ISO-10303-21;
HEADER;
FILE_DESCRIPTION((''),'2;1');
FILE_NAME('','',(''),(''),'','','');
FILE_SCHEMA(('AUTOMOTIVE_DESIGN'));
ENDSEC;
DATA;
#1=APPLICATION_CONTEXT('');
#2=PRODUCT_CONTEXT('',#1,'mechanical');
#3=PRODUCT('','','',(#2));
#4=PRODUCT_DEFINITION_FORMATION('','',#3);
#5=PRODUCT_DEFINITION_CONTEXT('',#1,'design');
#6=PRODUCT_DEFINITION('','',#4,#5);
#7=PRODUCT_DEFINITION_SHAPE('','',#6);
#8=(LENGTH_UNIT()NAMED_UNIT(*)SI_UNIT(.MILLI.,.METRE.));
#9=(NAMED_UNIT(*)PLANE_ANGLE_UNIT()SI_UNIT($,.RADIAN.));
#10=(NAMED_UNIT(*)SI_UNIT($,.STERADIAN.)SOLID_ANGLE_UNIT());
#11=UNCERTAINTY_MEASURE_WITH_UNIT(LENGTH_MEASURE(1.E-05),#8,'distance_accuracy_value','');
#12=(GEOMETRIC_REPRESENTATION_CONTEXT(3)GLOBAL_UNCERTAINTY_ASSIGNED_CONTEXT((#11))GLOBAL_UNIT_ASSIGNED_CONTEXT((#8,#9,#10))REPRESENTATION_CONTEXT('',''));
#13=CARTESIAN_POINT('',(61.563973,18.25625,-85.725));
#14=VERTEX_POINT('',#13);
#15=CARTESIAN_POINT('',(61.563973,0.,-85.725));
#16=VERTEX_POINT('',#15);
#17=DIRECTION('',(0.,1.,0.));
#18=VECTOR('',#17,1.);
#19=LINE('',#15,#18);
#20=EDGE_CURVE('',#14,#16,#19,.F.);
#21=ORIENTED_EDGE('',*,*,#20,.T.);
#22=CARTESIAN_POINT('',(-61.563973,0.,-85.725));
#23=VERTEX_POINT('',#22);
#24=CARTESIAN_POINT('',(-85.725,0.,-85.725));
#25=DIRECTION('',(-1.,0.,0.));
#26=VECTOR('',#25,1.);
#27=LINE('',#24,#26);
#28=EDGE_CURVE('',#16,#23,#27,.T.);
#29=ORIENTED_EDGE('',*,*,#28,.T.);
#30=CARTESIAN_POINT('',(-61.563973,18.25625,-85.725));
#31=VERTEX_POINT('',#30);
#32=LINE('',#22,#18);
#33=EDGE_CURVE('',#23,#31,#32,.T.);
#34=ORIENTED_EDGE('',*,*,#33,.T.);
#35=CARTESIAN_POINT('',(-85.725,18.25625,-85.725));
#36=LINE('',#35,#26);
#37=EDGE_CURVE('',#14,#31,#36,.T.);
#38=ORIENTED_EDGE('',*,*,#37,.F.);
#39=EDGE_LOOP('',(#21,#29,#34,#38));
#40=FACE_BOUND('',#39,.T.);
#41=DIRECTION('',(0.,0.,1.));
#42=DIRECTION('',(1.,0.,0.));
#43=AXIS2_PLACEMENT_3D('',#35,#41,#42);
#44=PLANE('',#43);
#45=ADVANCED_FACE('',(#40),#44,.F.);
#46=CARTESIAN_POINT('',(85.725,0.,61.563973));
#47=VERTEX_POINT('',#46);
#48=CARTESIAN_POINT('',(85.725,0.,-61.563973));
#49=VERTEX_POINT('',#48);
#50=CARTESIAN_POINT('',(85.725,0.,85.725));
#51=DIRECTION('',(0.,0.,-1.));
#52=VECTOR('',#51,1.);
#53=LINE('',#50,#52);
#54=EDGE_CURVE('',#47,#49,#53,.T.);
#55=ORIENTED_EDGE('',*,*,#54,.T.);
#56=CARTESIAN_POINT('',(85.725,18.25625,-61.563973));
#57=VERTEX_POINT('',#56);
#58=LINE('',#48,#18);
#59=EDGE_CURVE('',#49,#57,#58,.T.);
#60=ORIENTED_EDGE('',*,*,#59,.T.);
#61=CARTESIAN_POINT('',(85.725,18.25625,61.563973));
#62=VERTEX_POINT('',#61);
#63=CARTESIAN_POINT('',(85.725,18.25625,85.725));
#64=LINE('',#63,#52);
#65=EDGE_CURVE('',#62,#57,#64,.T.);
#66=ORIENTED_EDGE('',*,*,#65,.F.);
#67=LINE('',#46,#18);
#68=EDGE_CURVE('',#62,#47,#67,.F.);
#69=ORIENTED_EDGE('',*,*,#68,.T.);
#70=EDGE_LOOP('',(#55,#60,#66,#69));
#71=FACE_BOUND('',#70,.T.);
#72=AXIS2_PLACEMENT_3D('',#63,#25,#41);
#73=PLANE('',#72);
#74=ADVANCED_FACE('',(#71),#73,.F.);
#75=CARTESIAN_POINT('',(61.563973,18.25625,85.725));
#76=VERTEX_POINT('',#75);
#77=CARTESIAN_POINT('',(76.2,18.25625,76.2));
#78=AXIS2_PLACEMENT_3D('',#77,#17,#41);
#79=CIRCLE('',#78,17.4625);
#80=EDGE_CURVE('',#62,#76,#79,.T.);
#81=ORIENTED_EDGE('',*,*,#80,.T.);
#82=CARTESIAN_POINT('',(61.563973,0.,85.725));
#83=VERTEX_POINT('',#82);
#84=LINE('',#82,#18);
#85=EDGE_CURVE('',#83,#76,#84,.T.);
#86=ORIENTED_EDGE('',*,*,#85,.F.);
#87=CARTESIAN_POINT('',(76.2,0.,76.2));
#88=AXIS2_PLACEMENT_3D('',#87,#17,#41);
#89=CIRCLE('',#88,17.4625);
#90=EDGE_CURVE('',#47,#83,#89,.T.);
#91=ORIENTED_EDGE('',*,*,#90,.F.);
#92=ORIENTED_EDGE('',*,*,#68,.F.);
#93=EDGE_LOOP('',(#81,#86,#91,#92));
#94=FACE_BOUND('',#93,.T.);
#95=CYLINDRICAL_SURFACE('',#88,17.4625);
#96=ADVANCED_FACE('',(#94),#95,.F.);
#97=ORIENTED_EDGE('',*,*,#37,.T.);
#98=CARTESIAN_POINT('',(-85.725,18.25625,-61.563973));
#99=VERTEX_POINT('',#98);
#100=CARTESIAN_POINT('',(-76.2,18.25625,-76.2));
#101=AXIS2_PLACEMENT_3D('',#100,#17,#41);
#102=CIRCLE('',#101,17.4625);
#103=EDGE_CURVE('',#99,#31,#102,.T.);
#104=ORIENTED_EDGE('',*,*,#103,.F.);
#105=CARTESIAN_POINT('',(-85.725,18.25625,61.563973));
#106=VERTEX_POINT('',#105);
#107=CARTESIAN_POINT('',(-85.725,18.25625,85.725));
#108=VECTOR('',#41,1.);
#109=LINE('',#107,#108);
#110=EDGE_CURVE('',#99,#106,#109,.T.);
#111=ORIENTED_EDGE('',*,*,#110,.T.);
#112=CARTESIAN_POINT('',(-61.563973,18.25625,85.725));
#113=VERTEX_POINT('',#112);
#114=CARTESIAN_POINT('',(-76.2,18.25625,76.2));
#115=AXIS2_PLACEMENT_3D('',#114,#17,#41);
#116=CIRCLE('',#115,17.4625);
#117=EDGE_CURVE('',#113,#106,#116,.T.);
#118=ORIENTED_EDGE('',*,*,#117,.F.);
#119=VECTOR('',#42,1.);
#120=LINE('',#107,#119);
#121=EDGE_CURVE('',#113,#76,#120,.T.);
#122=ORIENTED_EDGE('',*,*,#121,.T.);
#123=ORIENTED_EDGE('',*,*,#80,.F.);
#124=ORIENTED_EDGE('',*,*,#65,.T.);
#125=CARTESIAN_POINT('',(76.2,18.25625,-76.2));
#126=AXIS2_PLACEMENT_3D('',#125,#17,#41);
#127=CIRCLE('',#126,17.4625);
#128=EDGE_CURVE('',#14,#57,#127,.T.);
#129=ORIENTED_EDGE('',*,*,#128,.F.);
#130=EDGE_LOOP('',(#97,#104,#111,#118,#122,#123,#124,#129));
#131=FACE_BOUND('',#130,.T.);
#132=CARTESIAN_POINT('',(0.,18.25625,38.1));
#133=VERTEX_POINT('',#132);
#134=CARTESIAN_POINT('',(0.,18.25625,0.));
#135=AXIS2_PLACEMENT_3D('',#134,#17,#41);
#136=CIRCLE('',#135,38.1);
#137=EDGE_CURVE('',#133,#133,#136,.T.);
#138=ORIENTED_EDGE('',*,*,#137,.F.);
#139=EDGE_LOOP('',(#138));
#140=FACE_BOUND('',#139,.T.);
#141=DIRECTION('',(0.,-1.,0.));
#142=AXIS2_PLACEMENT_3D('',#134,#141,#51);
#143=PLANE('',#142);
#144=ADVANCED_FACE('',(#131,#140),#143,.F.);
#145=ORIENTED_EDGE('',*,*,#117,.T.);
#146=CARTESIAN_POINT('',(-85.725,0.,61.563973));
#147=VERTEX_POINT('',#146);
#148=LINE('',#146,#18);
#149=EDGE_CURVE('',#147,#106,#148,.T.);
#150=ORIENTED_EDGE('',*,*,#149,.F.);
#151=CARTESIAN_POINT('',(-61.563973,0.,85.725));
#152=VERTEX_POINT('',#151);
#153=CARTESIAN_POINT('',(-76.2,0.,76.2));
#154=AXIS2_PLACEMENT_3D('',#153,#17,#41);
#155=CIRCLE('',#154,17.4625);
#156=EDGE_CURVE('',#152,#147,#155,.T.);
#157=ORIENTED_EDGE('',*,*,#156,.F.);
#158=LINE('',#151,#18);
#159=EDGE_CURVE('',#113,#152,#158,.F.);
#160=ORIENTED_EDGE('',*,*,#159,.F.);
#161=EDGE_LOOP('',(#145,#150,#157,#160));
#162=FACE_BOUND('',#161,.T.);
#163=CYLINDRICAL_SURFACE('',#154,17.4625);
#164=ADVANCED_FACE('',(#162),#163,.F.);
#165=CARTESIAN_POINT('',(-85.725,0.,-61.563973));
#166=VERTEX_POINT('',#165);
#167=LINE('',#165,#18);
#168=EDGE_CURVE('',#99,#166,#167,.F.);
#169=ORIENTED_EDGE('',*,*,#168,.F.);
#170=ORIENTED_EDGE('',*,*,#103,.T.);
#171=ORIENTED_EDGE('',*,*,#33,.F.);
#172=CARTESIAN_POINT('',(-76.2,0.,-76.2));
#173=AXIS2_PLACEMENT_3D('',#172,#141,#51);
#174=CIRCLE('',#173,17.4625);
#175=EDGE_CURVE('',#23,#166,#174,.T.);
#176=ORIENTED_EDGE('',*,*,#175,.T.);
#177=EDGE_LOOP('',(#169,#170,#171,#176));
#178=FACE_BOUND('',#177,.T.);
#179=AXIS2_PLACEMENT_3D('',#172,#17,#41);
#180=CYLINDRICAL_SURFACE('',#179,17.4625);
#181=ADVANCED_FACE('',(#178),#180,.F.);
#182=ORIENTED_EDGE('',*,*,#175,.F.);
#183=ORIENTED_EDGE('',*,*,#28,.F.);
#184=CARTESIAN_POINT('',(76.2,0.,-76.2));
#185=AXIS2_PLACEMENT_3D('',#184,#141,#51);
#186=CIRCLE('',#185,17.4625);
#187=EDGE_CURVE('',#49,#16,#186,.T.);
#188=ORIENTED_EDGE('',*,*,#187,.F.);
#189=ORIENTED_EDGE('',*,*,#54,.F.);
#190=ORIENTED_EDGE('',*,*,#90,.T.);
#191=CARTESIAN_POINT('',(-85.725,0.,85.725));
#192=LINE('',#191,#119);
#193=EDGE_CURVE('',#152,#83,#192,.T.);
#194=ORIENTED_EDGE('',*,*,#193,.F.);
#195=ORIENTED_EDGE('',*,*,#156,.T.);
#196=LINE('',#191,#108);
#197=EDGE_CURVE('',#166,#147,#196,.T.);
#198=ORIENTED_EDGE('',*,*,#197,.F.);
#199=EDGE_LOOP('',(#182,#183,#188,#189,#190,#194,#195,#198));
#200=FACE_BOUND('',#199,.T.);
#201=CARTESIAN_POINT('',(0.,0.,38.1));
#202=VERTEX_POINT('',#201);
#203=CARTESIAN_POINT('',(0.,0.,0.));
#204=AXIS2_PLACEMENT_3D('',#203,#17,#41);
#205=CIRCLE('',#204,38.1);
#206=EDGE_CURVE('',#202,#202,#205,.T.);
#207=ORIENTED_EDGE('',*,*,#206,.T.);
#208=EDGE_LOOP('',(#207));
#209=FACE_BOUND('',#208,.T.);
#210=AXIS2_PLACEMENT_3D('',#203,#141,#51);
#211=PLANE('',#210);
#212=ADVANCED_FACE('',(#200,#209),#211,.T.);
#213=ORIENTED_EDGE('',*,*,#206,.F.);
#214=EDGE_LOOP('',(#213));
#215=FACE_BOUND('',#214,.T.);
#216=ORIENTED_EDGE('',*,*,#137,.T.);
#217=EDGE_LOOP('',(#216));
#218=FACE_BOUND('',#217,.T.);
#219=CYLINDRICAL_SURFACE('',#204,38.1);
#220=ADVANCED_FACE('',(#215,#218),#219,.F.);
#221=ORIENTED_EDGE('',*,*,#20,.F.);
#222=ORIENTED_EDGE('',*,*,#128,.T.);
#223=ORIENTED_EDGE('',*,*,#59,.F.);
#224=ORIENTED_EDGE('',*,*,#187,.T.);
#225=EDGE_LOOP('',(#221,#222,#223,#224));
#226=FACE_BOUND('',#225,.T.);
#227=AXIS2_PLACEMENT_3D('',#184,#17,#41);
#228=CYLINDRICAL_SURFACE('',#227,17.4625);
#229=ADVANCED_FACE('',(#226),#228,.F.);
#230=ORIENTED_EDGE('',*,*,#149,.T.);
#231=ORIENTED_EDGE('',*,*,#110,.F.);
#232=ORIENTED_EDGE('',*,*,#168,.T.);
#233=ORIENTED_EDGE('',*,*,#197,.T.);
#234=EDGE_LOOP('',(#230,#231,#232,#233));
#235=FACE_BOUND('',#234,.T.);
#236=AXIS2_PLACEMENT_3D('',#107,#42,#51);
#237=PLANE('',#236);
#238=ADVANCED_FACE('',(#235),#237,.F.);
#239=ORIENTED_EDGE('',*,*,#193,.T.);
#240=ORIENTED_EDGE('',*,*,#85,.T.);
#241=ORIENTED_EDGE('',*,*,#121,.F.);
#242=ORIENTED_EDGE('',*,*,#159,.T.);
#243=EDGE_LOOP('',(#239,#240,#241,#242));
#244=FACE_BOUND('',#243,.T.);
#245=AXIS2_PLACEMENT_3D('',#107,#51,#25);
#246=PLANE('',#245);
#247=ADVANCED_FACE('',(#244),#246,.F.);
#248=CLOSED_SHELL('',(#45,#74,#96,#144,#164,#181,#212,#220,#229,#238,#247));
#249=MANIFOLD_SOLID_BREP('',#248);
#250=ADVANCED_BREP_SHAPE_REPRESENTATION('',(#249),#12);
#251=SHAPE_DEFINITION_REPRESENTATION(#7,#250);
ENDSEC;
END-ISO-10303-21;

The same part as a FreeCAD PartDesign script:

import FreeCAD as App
import Part
import Sketcher

V = App.Vector
Q = App.Units.Quantity


def add_polygon(sketch, points):
    """Adds a closed chain of lines whose ends are joined by coincident constraints."""
    first, n = sketch.GeometryCount, len(points)
    for a, b in zip(points, points[1:] + points[:1]):
        sketch.addGeometry(Part.LineSegment(App.Vector(*a, 0), App.Vector(*b, 0)), False)
    for i in range(n):
        sketch.addConstraint(Sketcher.Constraint("Coincident", first + i, 2, first + (i + 1) % n, 1))

doc = App.newDocument("Part")
body = doc.addObject("PartDesign::Body", "Body")

sketch1 = body.newObject("Sketcher::SketchObject", "Sketch")
sketch1.AttachmentSupport = (doc.getObject("XZ_Plane"), [""])
sketch1.MapMode = "FlatFace"
add_polygon(sketch1, [(-86, -86), (-86, 86), (86, 86), (86, -86)])
sketch1.addConstraint([
    Sketcher.Constraint("Vertical", 0),
    Sketcher.Constraint("Horizontal", 1),
    Sketcher.Constraint("Vertical", 2),
    Sketcher.Constraint("Horizontal", 3),
    Sketcher.Constraint("Symmetric", 0, 2, 2, 2, -1, 1),
    Sketcher.Constraint("Equal", 3, 0),
    Sketcher.Constraint("DistanceX", 1, 1, 1, 2, Q("6.75 in")),
])
pad1 = body.newObject("PartDesign::Pad", "Pad")
pad1.Profile = sketch1
pad1.Length = Q("0.71875 in")
pad1.Reversed = True

sketch2 = body.newObject("Sketcher::SketchObject", "Sketch001")
sketch2.AttachmentSupport = (doc.getObject("XZ_Plane"), [""])
sketch2.MapMode = "FlatFace"
sketch2.AttachmentOffset = App.Placement(V(0, 0, -0.71875 * 25.4), App.Rotation())
sketch2.addGeometry([
    Part.Circle(V(-76, -76, 0), V(0, 0, 1), 17),
    Part.Circle(V(76, -76, 0), V(0, 0, 1), 17),
    Part.Circle(V(76, 76, 0), V(0, 0, 1), 17),
    Part.Circle(V(-76, 76, 0), V(0, 0, 1), 17),
], False)
sketch2.addConstraint([
    Sketcher.Constraint("Equal", 0, 1),
    Sketcher.Constraint("Equal", 1, 2),
    Sketcher.Constraint("Equal", 2, 3),
    Sketcher.Constraint("Symmetric", 0, 3, 2, 3, -1, 1),
    Sketcher.Constraint("Symmetric", 1, 3, 3, 3, -1, 1),
    Sketcher.Constraint("Symmetric", 0, 3, 1, 3, -2),
    Sketcher.Constraint("Diameter", 0, Q("1.375 in")),
    Sketcher.Constraint("DistanceX", 0, 3, -1, 1, Q("3 in")),
    Sketcher.Constraint("DistanceY", 0, 3, -1, 1, Q("3 in")),
])
pocket1 = body.newObject("PartDesign::Pocket", "Pocket")
pocket1.Profile = sketch2
pocket1.Type = "ThroughAll"
pocket1.Reversed = True

sketch3 = body.newObject("Sketcher::SketchObject", "Sketch002")
sketch3.AttachmentSupport = (doc.getObject("XZ_Plane"), [""])
sketch3.MapMode = "FlatFace"
sketch3.AttachmentOffset = App.Placement(V(0, 0, -0.71875 * 25.4), App.Rotation())
sketch3.addGeometry(Part.Circle(V(0, 0, 0), V(0, 0, 1), 38), False)
sketch3.addConstraint([
    Sketcher.Constraint("Coincident", 0, 3, -1, 1),
    Sketcher.Constraint("Diameter", 0, Q("3 in")),
])
pocket2 = body.newObject("PartDesign::Pocket", "Pocket001")
pocket2.Profile = sketch3
pocket2.Type = "ThroughAll"
pocket2.Reversed = True

doc.recompute()
